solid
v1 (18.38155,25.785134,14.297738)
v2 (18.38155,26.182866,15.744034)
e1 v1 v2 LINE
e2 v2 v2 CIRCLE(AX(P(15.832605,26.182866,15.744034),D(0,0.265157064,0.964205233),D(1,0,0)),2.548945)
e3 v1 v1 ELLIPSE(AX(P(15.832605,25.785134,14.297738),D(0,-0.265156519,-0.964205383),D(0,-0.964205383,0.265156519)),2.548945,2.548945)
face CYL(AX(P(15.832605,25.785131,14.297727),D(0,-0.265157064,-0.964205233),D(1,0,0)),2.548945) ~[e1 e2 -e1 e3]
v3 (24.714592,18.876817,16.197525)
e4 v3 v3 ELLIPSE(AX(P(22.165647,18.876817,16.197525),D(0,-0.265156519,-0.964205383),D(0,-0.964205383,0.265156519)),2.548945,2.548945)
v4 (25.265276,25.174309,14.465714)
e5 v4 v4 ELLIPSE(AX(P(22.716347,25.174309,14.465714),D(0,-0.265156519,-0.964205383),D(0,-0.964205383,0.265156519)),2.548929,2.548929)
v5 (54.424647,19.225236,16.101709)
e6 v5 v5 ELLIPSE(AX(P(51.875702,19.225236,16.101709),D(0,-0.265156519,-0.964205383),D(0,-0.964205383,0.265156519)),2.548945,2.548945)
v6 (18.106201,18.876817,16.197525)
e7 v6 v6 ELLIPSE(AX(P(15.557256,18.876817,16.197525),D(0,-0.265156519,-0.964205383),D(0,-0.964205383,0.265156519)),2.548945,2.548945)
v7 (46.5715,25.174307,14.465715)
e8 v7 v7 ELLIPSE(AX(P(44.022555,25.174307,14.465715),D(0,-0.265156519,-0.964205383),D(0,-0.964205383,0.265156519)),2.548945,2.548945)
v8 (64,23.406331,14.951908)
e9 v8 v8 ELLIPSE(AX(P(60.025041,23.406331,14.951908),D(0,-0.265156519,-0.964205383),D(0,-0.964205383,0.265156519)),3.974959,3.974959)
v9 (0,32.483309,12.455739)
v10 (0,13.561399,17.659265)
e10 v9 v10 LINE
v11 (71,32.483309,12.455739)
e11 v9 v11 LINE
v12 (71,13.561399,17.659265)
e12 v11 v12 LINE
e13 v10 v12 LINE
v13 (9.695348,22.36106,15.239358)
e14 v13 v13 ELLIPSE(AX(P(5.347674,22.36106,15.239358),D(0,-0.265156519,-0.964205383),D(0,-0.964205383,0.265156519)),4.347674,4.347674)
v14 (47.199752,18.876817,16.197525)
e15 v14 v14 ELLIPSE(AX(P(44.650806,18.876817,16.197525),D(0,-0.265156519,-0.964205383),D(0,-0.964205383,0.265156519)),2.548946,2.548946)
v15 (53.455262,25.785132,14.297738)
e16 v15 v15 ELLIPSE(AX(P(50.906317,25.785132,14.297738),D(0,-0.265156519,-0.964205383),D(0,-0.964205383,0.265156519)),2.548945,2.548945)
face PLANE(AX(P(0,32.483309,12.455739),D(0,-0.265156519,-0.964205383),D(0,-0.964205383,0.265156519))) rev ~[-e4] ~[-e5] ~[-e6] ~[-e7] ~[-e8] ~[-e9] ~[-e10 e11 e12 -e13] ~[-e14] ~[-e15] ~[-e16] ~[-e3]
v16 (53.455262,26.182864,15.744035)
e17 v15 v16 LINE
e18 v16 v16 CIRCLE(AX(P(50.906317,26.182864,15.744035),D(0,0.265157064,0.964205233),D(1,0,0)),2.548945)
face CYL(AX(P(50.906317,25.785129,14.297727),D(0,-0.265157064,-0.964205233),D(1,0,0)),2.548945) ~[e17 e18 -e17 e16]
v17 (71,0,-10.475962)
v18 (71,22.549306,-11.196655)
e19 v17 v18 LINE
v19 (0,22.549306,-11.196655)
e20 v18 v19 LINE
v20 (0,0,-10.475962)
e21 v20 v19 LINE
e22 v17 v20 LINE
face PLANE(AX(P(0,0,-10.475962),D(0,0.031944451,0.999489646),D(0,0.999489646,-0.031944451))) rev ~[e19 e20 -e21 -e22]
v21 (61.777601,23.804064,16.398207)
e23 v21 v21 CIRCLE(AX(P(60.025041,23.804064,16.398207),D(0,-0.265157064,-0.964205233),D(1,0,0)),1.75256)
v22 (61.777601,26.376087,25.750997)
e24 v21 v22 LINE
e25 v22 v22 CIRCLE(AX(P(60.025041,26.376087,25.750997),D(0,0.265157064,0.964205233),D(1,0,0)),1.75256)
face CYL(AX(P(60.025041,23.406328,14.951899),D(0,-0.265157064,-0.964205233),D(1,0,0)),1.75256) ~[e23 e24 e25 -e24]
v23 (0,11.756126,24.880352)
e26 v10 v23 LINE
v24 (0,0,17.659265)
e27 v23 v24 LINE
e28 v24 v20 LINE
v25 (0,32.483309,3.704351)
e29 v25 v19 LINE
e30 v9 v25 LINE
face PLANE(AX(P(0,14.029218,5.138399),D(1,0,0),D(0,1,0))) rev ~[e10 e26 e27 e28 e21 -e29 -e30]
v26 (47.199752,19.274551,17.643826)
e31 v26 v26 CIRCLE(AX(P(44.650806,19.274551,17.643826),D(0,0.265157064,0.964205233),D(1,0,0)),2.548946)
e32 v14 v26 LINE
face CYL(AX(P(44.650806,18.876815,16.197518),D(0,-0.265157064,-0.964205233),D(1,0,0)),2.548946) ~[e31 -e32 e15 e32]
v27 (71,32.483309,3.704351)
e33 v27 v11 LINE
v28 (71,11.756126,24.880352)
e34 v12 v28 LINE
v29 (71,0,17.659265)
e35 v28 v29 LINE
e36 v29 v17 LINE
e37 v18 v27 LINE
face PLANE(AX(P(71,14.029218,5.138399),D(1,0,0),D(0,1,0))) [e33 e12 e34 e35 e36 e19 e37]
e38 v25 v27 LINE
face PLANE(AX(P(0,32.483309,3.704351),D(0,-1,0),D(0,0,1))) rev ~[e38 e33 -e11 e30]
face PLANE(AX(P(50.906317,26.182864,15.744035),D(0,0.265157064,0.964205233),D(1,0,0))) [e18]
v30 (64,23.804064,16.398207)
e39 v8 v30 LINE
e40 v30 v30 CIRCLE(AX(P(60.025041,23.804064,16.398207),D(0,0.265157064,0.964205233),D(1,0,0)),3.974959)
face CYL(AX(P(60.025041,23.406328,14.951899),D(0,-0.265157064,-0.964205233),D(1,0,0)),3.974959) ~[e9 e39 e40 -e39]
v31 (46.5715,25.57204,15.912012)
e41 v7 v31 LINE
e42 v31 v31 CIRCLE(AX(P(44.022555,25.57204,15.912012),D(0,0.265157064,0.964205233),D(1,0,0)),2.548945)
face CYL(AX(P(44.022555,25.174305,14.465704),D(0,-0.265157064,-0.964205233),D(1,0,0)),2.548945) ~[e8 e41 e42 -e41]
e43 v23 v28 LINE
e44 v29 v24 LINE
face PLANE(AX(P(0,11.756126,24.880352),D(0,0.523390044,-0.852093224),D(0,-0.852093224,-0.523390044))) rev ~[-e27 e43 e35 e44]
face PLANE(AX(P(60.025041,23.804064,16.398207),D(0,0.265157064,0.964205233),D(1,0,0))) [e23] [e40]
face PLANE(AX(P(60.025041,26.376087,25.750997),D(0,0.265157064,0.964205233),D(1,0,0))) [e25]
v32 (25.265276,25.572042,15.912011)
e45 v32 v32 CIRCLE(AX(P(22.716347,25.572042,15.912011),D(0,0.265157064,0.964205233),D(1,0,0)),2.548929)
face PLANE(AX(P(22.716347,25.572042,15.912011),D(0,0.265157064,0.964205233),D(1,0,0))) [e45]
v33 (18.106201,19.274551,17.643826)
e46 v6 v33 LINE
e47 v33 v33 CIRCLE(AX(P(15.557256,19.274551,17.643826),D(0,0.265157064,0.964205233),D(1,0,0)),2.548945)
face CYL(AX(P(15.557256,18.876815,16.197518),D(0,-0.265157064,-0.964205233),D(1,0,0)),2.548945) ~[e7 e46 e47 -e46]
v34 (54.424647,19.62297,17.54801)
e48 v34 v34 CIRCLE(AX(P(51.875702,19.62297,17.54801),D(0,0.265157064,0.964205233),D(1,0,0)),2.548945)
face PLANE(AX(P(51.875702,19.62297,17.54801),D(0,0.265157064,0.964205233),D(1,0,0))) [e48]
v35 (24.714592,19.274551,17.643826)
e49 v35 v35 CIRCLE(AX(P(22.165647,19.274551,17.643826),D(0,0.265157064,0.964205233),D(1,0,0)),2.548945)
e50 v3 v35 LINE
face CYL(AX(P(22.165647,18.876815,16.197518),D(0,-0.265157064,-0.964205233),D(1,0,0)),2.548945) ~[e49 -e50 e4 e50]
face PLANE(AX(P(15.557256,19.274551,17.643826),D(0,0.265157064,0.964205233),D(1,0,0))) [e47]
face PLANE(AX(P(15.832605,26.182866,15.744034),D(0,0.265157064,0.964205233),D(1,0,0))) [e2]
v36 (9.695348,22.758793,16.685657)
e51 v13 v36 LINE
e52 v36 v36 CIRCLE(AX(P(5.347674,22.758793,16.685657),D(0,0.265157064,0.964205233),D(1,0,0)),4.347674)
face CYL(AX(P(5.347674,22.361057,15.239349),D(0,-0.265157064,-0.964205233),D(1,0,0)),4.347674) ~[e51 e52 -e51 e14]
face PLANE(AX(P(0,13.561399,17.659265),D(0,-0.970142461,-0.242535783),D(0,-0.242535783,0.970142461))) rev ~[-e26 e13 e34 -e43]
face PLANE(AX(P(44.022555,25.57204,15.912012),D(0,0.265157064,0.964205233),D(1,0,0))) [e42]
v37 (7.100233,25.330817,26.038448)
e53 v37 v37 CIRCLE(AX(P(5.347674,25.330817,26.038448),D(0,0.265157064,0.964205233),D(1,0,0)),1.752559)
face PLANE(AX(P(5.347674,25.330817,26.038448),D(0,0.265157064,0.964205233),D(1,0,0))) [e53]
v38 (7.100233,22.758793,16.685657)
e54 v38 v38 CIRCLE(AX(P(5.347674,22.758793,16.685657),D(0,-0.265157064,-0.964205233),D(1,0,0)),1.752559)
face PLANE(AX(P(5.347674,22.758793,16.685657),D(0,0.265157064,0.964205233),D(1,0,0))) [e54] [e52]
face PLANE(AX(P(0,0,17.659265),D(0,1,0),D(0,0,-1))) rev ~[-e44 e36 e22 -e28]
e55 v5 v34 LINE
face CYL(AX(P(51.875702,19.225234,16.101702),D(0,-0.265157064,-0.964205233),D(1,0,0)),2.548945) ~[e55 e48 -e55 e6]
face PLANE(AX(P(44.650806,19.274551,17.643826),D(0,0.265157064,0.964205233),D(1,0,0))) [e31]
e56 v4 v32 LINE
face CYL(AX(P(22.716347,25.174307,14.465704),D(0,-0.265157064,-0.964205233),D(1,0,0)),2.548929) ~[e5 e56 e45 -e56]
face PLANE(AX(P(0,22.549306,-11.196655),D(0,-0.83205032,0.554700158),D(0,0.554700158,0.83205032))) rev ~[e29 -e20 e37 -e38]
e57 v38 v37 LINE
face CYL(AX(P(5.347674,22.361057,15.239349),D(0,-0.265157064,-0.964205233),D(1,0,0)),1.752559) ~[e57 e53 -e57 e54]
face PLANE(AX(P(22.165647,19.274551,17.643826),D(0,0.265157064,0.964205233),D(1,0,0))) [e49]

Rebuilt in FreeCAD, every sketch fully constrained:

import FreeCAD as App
import Part
import Sketcher
from FreeCAD import Vector
Q = App.Units.Quantity


def edges_at(feature, points):
    """Names of the edges that pass closest to the given points."""
    edges = feature.Shape.Edges
    near = lambda p: min(range(len(edges)), key=lambda i: edges[i].distToShape(Part.Vertex(*p))[0])
    return sorted({f"Edge{near(p) + 1}" for p in points})


def add_polygon(sketch, points):
    """Adds a closed chain of lines whose ends are joined by coincident constraints."""
    first, n = sketch.GeometryCount, len(points)
    for a, b in zip(points, points[1:] + points[:1]):
        sketch.addGeometry(Part.LineSegment(App.Vector(*a, 0), App.Vector(*b, 0)), False)
    for i in range(n):
        sketch.addConstraint(Sketcher.Constraint("Coincident", first + i, 2, first + (i + 1) % n, 1))

doc = App.newDocument("Part")
body = doc.addObject("PartDesign::Body", "Body")

# Sketch on YZ plane
sketch1 = doc.addObject("Sketcher::SketchObject", "Sketch")
body.addObject(sketch1)
sketch1.AttachmentSupport = (doc.YZ_Plane, [""])
sketch1.MapMode = "FlatFace"
add_polygon(sketch1, [(0, -10), (23, -11), (32, 4), (32, 12), (14, 18), (12, 25), (0, 18)])  # lines 0-6
sketch1.addConstraint([
    Sketcher.Constraint("Vertical", 2),
    Sketcher.Constraint("Vertical", 6),
    Sketcher.Constraint("PointOnObject", 5, 2, -2),
    Sketcher.Constraint("Horizontal", 3, 2, 5, 2),
    Sketcher.Constraint("DistanceY", 1, 2, 4, 2, Q("21.176001 mm")),
    Sketcher.Constraint("DistanceX", -1, 1, 3, 2, Q("13.561399 mm")),
    Sketcher.Constraint("Distance", 0, Q("22.56082 mm")),
    Sketcher.Constraint("Distance", 1, Q("17.90878 mm")),
    Sketcher.Constraint("Distance", 5, Q("13.79676 mm")),
    Sketcher.Constraint("DistanceY", 2, 1, 2, 2, Q("8.751388 mm")),
    Sketcher.Constraint("DistanceY", 6, 2, 6, 1, Q("28.135227 mm")),
    Sketcher.Constraint("DistanceX", -1, 1, 1, 2, Q("32.483309 mm")),
    Sketcher.Constraint("DistanceY", -1, 1, 1, 2, Q("3.704351 mm")),
    Sketcher.Constraint("DistanceY", 0, 2, 3, 2, Q("28.85592 mm")),
])
pad1 = doc.addObject("PartDesign::Pad", "Pad")
body.addObject(pad1)
pad1.Profile = sketch1
pad1.Length = 65
doc.recompute()

fillet = doc.addObject("PartDesign::Fillet", "Fillet")
body.addObject(fillet)
fillet.Base = (pad1, edges_at(pad1, [(32.5, 32.483, 3.704), (32.5, 32.483, 12.456)]))
fillet.Radius = 2

# Sketch on an angled plane
sketch2 = doc.addObject("Sketcher::SketchObject", "Sketch001")
body.addObject(sketch2)
sketch2.Placement = App.Placement(Vector(0, 5.468337, 19.884858), App.Rotation(Vector(1, 0, 0), Vector(0, 0.964205233, -0.265157064), Vector(0, 0.265157064, 0.964205233), "ZXY"))
sketch2.addGeometry([
    Part.Circle(Vector(50.9, 21.1, 0), Vector(0, 0, 1), 2.5),  # 0
    Part.Circle(Vector(44, 20.4, 0), Vector(0, 0, 1), 2.5),  # 1
    Part.Circle(Vector(44.7, 13.9, 0), Vector(0, 0, 1), 2.5),  # 2
    Part.Circle(Vector(51.9, 14.3, 0), Vector(0, 0, 1), 2.5),  # 3
    Part.Circle(Vector(22.2, 13.9, 0), Vector(0, 0, 1), 2.5),  # 4
    Part.Circle(Vector(15.6, 13.9, 0), Vector(0, 0, 1), 2.5),  # 5
    Part.Circle(Vector(15.8, 21.1, 0), Vector(0, 0, 1), 2.5),  # 6
    Part.Circle(Vector(22.7, 20.4, 0), Vector(0, 0, 1), 2.5),  # 7
    Part.Circle(Vector(5.3, 17.5, 0), Vector(0, 0, 1), 4.3),  # 8
    Part.Circle(Vector(60, 18.6, 0), Vector(0, 0, 1), 4),  # 9
], False)
sketch2.addConstraint([
    Sketcher.Constraint("Equal", 0, 1),
    Sketcher.Constraint("Equal", 1, 2),
    Sketcher.Constraint("Equal", 2, 3),
    Sketcher.Constraint("Equal", 3, 4),
    Sketcher.Constraint("Equal", 4, 5),
    Sketcher.Constraint("Equal", 5, 6),
    Sketcher.Constraint("Horizontal", 2, 3, 4, 3),
    Sketcher.Constraint("Horizontal", 4, 3, 5, 3),
    Sketcher.Constraint("Horizontal", 0, 3, 6, 3),
    Sketcher.Constraint("Diameter", 0, Q("5.09789 mm")),
    Sketcher.Constraint("Diameter", 9, Q("7.949918 mm")),
    Sketcher.Constraint("Diameter", 7, Q("5.097858 mm")),
    Sketcher.Constraint("Diameter", 8, Q("8.695348 mm")),
    Sketcher.Constraint("DistanceX", -1, 1, 3, 3, Q("51.875702 mm")),
    Sketcher.Constraint("DistanceY", 1, 3, 0, 3, Q("0.6335 mm")),
    Sketcher.Constraint("DistanceX", 5, 3, 1, 3, Q("28.465299 mm")),
    Sketcher.Constraint("DistanceX", 6, 3, 2, 3, Q("28.818201 mm")),
    Sketcher.Constraint("DistanceX", 4, 3, 7, 3, Q("0.5507 mm")),
    Sketcher.Constraint("DistanceY", 7, 3, 6, 3, Q("0.6335 mm")),
    Sketcher.Constraint("DistanceY", -1, 1, 2, 3, Q("13.906249 mm")),
    Sketcher.Constraint("DistanceY", -1, 1, 8, 3, Q("17.519839 mm")),
    Sketcher.Constraint("DistanceX", -1, 1, 9, 3, Q("60.025041 mm")),
    Sketcher.Constraint("DistanceX", 1, 3, 2, 3, Q("0.628251 mm")),
    Sketcher.Constraint("DistanceX", 2, 3, 0, 3, Q("6.255511 mm")),
    Sketcher.Constraint("DistanceY", 3, 3, 0, 3, Q("6.803421 mm")),
    Sketcher.Constraint("DistanceX", 4, 3, 2, 3, Q("22.485159 mm")),
    Sketcher.Constraint("DistanceX", 8, 3, 6, 3, Q("10.484931 mm")),
    Sketcher.Constraint("DistanceY", 3, 3, 9, 3, Q("4.336311 mm")),
    Sketcher.Constraint("DistanceX", -1, 1, 0, 3, Q("50.906317 mm")),
    Sketcher.Constraint("DistanceY", -1, 1, 0, 3, Q("21.071024 mm")),
])
pad2 = doc.addObject("PartDesign::Pad", "Pad001")
body.addObject(pad2)
pad2.Profile = sketch2
pad2.Length = 1.5

# Sketch on an angled plane
sketch3 = doc.addObject("Sketcher::SketchObject", "Sketch002")
body.addObject(sketch3)
sketch3.Placement = App.Placement(Vector(0, 5.468337, 19.884858), App.Rotation(Vector(1, 0, 0), Vector(0, 0.964205233, -0.265157064), Vector(0, 0.265157064, 0.964205233), "ZXY"))
sketch3.addGeometry([
    Part.Circle(Vector(60, 18.6, 0), Vector(0, 0, 1), 1.8),
    Part.Circle(Vector(5.3, 17.5, 0), Vector(0, 0, 1), 1.8),
], False)
sketch3.addConstraint([
    Sketcher.Constraint("Equal", 0, 1),
    Sketcher.Constraint("Diameter", 0, Q("3.50512 mm")),
    Sketcher.Constraint("DistanceX", -1, 1, 0, 3, Q("60.025041 mm")),
    Sketcher.Constraint("DistanceY", -1, 1, 1, 3, Q("17.519839 mm")),
    Sketcher.Constraint("DistanceY", -1, 1, 0, 3, Q("18.603914 mm")),
    Sketcher.Constraint("DistanceX", -1, 1, 1, 3, Q("5.347674 mm")),
])
pad3 = doc.addObject("PartDesign::Pad", "Pad002")
body.addObject(pad3)
pad3.Profile = sketch3
pad3.Length = 11.2

# Sketch on YZ plane
sketch4 = doc.addObject("Sketcher::SketchObject", "Sketch003")
body.addObject(sketch4)
sketch4.AttachmentSupport = (doc.YZ_Plane, [""])
sketch4.MapMode = "FlatFace"
add_polygon(sketch4, [(0, -10), (23, -11), (32, 4), (32, 12), (14, 18), (12, 25), (0, 18)])  # lines 0-6
sketch4.addConstraint([
    Sketcher.Constraint("Vertical", 2),
    Sketcher.Constraint("Vertical", 6),
    Sketcher.Constraint("PointOnObject", 5, 2, -2),
    Sketcher.Constraint("Horizontal", 3, 2, 5, 2),
    Sketcher.Constraint("DistanceY", 1, 2, 4, 2, Q("21.176001 mm")),
    Sketcher.Constraint("DistanceX", -1, 1, 3, 2, Q("13.561399 mm")),
    Sketcher.Constraint("Distance", 0, Q("22.56082 mm")),
    Sketcher.Constraint("Distance", 1, Q("17.90878 mm")),
    Sketcher.Constraint("Distance", 5, Q("13.79676 mm")),
    Sketcher.Constraint("DistanceY", 2, 1, 2, 2, Q("8.751388 mm")),
    Sketcher.Constraint("DistanceY", 6, 2, 6, 1, Q("28.135227 mm")),
    Sketcher.Constraint("DistanceX", -1, 1, 1, 2, Q("32.483309 mm")),
    Sketcher.Constraint("DistanceY", -1, 1, 1, 2, Q("3.704351 mm")),
    Sketcher.Constraint("DistanceY", 0, 2, 3, 2, Q("28.85592 mm")),
])
pad4 = doc.addObject("PartDesign::Pad", "Pad003")
body.addObject(pad4)
pad4.Profile = sketch4
pad4.Length = 71

doc.recompute()
